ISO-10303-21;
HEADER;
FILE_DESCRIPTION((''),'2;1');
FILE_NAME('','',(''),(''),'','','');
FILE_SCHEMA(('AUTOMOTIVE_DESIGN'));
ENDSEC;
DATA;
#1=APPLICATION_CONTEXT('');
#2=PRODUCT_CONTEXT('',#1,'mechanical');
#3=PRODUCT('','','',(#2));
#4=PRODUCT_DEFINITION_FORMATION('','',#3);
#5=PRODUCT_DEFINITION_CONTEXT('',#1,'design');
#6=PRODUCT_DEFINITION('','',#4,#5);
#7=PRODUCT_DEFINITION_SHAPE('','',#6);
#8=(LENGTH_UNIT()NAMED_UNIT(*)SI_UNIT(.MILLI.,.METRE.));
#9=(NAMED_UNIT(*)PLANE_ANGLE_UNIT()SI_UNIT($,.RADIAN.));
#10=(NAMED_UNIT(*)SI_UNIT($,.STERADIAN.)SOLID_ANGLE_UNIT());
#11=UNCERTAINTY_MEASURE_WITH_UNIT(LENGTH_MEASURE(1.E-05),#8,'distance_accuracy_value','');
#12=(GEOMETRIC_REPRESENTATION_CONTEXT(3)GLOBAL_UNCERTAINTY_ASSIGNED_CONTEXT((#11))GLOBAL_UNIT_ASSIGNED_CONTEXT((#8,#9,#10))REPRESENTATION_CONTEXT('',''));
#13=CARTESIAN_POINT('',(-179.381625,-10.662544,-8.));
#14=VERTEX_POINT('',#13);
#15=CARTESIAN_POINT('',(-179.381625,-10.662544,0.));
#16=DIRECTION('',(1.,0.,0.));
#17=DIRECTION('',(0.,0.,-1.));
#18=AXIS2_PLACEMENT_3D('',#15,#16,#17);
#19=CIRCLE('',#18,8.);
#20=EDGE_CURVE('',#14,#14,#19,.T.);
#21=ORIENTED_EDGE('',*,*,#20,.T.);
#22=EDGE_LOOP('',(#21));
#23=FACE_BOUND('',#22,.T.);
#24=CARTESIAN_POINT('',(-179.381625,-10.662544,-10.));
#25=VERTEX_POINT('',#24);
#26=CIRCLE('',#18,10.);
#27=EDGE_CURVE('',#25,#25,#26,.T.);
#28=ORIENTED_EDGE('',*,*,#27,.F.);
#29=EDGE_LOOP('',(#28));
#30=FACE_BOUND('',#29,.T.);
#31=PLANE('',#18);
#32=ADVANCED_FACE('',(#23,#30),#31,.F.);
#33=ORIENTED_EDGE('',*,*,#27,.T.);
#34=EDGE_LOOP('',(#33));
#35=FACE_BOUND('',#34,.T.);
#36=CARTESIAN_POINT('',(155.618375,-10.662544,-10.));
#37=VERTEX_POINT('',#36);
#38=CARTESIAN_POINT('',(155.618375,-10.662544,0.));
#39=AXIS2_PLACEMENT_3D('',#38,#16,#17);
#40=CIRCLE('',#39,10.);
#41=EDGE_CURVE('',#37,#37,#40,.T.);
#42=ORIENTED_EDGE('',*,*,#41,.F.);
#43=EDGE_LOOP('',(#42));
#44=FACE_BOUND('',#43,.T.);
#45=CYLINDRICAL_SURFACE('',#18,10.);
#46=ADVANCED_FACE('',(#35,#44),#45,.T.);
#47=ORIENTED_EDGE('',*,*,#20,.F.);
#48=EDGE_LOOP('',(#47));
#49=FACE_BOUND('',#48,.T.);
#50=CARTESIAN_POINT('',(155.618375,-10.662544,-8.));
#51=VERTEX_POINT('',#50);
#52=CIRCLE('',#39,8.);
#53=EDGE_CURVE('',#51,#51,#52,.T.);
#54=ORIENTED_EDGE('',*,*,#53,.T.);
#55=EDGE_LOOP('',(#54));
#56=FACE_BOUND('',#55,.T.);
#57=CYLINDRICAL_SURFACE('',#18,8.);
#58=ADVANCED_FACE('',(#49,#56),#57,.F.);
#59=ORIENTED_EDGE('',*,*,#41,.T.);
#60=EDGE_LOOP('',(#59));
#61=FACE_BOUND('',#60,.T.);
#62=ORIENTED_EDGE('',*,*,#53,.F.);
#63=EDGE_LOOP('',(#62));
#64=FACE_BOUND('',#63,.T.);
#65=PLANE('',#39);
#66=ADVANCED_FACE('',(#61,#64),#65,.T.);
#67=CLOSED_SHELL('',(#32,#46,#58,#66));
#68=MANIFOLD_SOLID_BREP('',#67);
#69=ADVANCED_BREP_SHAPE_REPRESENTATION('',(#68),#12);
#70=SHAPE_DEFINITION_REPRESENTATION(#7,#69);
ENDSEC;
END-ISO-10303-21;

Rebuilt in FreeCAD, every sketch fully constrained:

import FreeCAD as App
import Part
import Sketcher
Q = App.Units.Quantity

doc = App.newDocument("Part")
body = doc.addObject("PartDesign::Body", "Body")

sketch1 = doc.addObject("Sketcher::SketchObject", "Sketch")
body.addObject(sketch1)
sketch1.AttachmentSupport = (doc.YZ_Plane, [""])
sketch1.MapMode = "FlatFace"
sketch1.AttachmentOffset = App.Placement(App.Vector(0, 0, -179.381625), App.Rotation())
sketch1.addGeometry(Part.Circle(App.Vector(-10.662544, 0, 0), App.Vector(0, 0, 1), 10), False)
sketch1.addGeometry(Part.Circle(App.Vector(-10.662544, 0, 0), App.Vector(0, 0, 1), 8), False)
sketch1.addConstraint(Sketcher.Constraint("Coincident", 1, 3, 0, 3))
sketch1.addConstraint(Sketcher.Constraint("PointOnObject", 0, 3, -1))
sketch1.addConstraint(Sketcher.Constraint("Diameter", 0, Q("20 mm")))
sketch1.addConstraint(Sketcher.Constraint("Diameter", 1, Q("16 mm")))
sketch1.addConstraint(Sketcher.Constraint("DistanceX", 0, 3, -1, 1, Q("10.662544 mm")))

sketch2 = doc.addObject("Sketcher::SketchObject", "Sketch001")
body.addObject(sketch2)
sketch2.AttachmentSupport = (doc.XY_Plane, [""])
sketch2.MapMode = "FlatFace"
sketch2.addGeometry(Part.LineSegment(App.Vector(-179.381625, -10.662544, 0), App.Vector(155.618375, -10.662544, 0)), False)
sketch2.addConstraint(Sketcher.Constraint("Horizontal", 0))
sketch2.addConstraint(Sketcher.Constraint("DistanceX", 0, 1, 0, 2, Q("335 mm")))
sketch2.addConstraint(Sketcher.Constraint("DistanceX", 0, 1, -1, 1, Q("179.381625 mm")))
sketch2.addConstraint(Sketcher.Constraint("DistanceY", 0, 1, -1, 1, Q("10.662544 mm")))
doc.recompute()

additivepipe = doc.addObject("PartDesign::AdditivePipe", "AdditivePipe")
body.addObject(additivepipe)
additivepipe.Profile = sketch1
additivepipe.Spine = (sketch2, ["Edge1"])

doc.recompute()
